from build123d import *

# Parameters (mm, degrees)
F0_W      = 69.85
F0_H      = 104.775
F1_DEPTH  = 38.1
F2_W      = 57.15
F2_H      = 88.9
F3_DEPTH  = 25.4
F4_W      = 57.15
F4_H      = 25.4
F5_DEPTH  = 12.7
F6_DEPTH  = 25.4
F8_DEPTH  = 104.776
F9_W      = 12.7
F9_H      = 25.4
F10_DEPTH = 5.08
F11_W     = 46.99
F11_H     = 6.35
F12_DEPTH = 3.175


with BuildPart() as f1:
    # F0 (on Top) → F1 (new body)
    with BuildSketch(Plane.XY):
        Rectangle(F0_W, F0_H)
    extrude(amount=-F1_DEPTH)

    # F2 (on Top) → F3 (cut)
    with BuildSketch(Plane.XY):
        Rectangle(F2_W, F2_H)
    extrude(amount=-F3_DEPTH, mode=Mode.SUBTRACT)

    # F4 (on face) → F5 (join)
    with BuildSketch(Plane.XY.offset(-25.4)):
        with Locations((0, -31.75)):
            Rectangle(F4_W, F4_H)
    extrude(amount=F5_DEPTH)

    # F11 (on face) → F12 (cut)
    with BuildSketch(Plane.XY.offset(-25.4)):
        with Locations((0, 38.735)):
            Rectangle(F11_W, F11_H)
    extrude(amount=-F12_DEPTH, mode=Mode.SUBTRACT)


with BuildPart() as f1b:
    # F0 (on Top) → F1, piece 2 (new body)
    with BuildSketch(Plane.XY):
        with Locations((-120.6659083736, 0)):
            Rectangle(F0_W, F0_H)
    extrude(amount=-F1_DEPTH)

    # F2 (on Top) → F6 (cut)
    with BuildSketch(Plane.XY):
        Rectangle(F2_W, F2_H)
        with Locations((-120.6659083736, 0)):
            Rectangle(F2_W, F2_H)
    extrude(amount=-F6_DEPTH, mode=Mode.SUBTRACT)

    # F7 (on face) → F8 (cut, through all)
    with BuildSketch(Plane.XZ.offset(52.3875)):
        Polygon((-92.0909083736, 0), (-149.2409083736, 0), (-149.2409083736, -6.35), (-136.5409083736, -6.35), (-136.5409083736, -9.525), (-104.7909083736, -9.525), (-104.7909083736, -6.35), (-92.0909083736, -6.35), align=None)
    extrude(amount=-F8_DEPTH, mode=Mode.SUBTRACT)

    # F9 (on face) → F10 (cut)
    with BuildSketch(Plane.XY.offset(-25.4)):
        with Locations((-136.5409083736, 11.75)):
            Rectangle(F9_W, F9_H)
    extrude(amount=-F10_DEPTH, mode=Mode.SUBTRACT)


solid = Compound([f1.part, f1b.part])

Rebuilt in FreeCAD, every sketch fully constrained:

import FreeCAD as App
import Part
import Sketcher
Q = App.Units.Quantity

doc = App.newDocument("Part")
body = doc.addObject("PartDesign::Body", "Body")

sketch1 = body.newObject("Sketcher::SketchObject", "Sketch")
sketch1.AttachmentSupport = (doc.getObject("XY_Plane"), [""])
sketch1.MapMode = "FlatFace"
sketch1.addGeometry([
    Part.LineSegment(App.Vector(-35, 52, 0), App.Vector(-35, -52, 0)),
    Part.LineSegment(App.Vector(-35, -52, 0), App.Vector(35, -52, 0)),
    Part.LineSegment(App.Vector(35, -52, 0), App.Vector(35, 52, 0)),
    Part.LineSegment(App.Vector(35, 52, 0), App.Vector(-35, 52, 0)),
], False)
sketch1.addConstraint([
    Sketcher.Constraint("Coincident", 0, 2, 1, 1),
    Sketcher.Constraint("Coincident", 1, 2, 2, 1),
    Sketcher.Constraint("Coincident", 2, 2, 3, 1),
    Sketcher.Constraint("Coincident", 3, 2, 0, 1),
    Sketcher.Constraint("Vertical", 0),
    Sketcher.Constraint("Horizontal", 1),
    Sketcher.Constraint("Vertical", 2),
    Sketcher.Constraint("Horizontal", 3),
    Sketcher.Constraint("Symmetric", 0, 2, 2, 2, -1, 1),
    Sketcher.Constraint("DistanceX", 1, 1, 1, 2, Q("2.75 in")),
    Sketcher.Constraint("DistanceY", 0, 2, 0, 1, Q("4.125 in")),
])
pad1 = body.newObject("PartDesign::Pad", "Pad")
pad1.Profile = sketch1
pad1.Length = Q("1.5 in")
pad1.Reversed = True

sketch2 = body.newObject("Sketcher::SketchObject", "Sketch001")
sketch2.AttachmentSupport = (doc.getObject("XY_Plane"), [""])
sketch2.MapMode = "FlatFace"
sketch2.addGeometry([
    Part.LineSegment(App.Vector(-29, 44, 0), App.Vector(-29, -44, 0)),
    Part.LineSegment(App.Vector(-29, -44, 0), App.Vector(29, -44, 0)),
    Part.LineSegment(App.Vector(29, -44, 0), App.Vector(29, 44, 0)),
    Part.LineSegment(App.Vector(29, 44, 0), App.Vector(-29, 44, 0)),
], False)
sketch2.addConstraint([
    Sketcher.Constraint("Coincident", 0, 2, 1, 1),
    Sketcher.Constraint("Coincident", 1, 2, 2, 1),
    Sketcher.Constraint("Coincident", 2, 2, 3, 1),
    Sketcher.Constraint("Coincident", 3, 2, 0, 1),
    Sketcher.Constraint("Vertical", 0),
    Sketcher.Constraint("Horizontal", 1),
    Sketcher.Constraint("Vertical", 2),
    Sketcher.Constraint("Horizontal", 3),
    Sketcher.Constraint("Symmetric", 0, 2, 2, 2, -1, 1),
    Sketcher.Constraint("DistanceY", 0, 2, 0, 1, Q("3.5 in")),
    Sketcher.Constraint("DistanceX", 1, 1, 1, 2, Q("2.25 in")),
])
pocket1 = body.newObject("PartDesign::Pocket", "Pocket")
pocket1.Profile = sketch2
pocket1.Length = Q("1 in")

sketch3 = body.newObject("Sketcher::SketchObject", "Sketch002")
sketch3.AttachmentSupport = (doc.getObject("XY_Plane"), [""])
sketch3.MapMode = "FlatFace"
sketch3.AttachmentOffset = App.Placement(App.Vector(0, 0, -1 * 25.4), App.Rotation())
sketch3.addGeometry([
    Part.LineSegment(App.Vector(-29, -19, 0), App.Vector(-29, -44, 0)),
    Part.LineSegment(App.Vector(-29, -44, 0), App.Vector(29, -44, 0)),
    Part.LineSegment(App.Vector(29, -44, 0), App.Vector(29, -19, 0)),
    Part.LineSegment(App.Vector(29, -19, 0), App.Vector(-29, -19, 0)),
], False)
sketch3.addConstraint([
    Sketcher.Constraint("Coincident", 0, 2, 1, 1),
    Sketcher.Constraint("Coincident", 1, 2, 2, 1),
    Sketcher.Constraint("Coincident", 2, 2, 3, 1),
    Sketcher.Constraint("Coincident", 3, 2, 0, 1),
    Sketcher.Constraint("Vertical", 0),
    Sketcher.Constraint("Horizontal", 1),
    Sketcher.Constraint("Vertical", 2),
    Sketcher.Constraint("Horizontal", 3),
    Sketcher.Constraint("DistanceY", 0, 2, 0, 1, Q("1 in")),
    Sketcher.Constraint("DistanceX", 1, 1, 1, 2, Q("2.25 in")),
    Sketcher.Constraint("DistanceY", 0, 2, -1, 1, Q("1.75 in")),
    Sketcher.Constraint("DistanceX", 0, 2, -1, 1, Q("1.125 in")),
])
pad2 = body.newObject("PartDesign::Pad", "Pad001")
pad2.Profile = sketch3
pad2.Length = Q("0.5 in")

sketch4 = body.newObject("Sketcher::SketchObject", "Sketch003")
sketch4.AttachmentSupport = (doc.getObject("XY_Plane"), [""])
sketch4.MapMode = "FlatFace"
sketch4.AttachmentOffset = App.Placement(App.Vector(0, 0, -1 * 25.4), App.Rotation())
sketch4.addGeometry([
    Part.LineSegment(App.Vector(-23, 42, 0), App.Vector(-23, 36, 0)),
    Part.LineSegment(App.Vector(-23, 36, 0), App.Vector(23, 36, 0)),
    Part.LineSegment(App.Vector(23, 36, 0), App.Vector(23, 42, 0)),
    Part.LineSegment(App.Vector(23, 42, 0), App.Vector(-23, 42, 0)),
], False)
sketch4.addConstraint([
    Sketcher.Constraint("Coincident", 0, 2, 1, 1),
    Sketcher.Constraint("Coincident", 1, 2, 2, 1),
    Sketcher.Constraint("Coincident", 2, 2, 3, 1),
    Sketcher.Constraint("Coincident", 3, 2, 0, 1),
    Sketcher.Constraint("Vertical", 0),
    Sketcher.Constraint("Horizontal", 1),
    Sketcher.Constraint("Vertical", 2),
    Sketcher.Constraint("Horizontal", 3),
    Sketcher.Constraint("DistanceX", 1, 1, 1, 2, Q("1.85 in")),
    Sketcher.Constraint("DistanceY", 0, 2, 0, 1, Q("0.25 in")),
    Sketcher.Constraint("DistanceY", -1, 1, 0, 2, Q("1.4 in")),
    Sketcher.Constraint("DistanceX", 0, 2, -1, 1, Q("0.925 in")),
])
pocket2 = body.newObject("PartDesign::Pocket", "Pocket001")
pocket2.Profile = sketch4
pocket2.Length = Q("0.125 in")
body2 = doc.addObject("PartDesign::Body", "Body001")

sketch5 = body2.newObject("Sketcher::SketchObject", "Sketch004")
sketch5.AttachmentSupport = (doc.getObject("XY_Plane001"), [""])
sketch5.MapMode = "FlatFace"
sketch5.addGeometry([
    Part.LineSegment(App.Vector(-156, 52, 0), App.Vector(-156, -52, 0)),
    Part.LineSegment(App.Vector(-156, -52, 0), App.Vector(-86, -52, 0)),
    Part.LineSegment(App.Vector(-86, -52, 0), App.Vector(-86, 52, 0)),
    Part.LineSegment(App.Vector(-86, 52, 0), App.Vector(-156, 52, 0)),
], False)
sketch5.addConstraint([
    Sketcher.Constraint("Coincident", 0, 2, 1, 1),
    Sketcher.Constraint("Coincident", 1, 2, 2, 1),
    Sketcher.Constraint("Coincident", 2, 2, 3, 1),
    Sketcher.Constraint("Coincident", 3, 2, 0, 1),
    Sketcher.Constraint("Vertical", 0),
    Sketcher.Constraint("Horizontal", 1),
    Sketcher.Constraint("Vertical", 2),
    Sketcher.Constraint("Horizontal", 3),
    Sketcher.Constraint("DistanceX", 1, 1, 1, 2, Q("2.75 in")),
    Sketcher.Constraint("DistanceY", 0, 2, 0, 1, Q("4.125 in")),
    Sketcher.Constraint("DistanceY", 0, 2, -1, 1, Q("2.0625 in")),
    Sketcher.Constraint("DistanceX", 0, 2, -1, 1, Q("155.590908 mm")),
])
pad3 = body2.newObject("PartDesign::Pad", "Pad002")
pad3.Profile = sketch5
pad3.Length = Q("1.5 in")
pad3.Reversed = True

sketch6 = body2.newObject("Sketcher::SketchObject", "Sketch005")
sketch6.AttachmentSupport = (doc.getObject("XY_Plane001"), [""])
sketch6.MapMode = "FlatFace"
sketch6.addGeometry([
    Part.LineSegment(App.Vector(-29, 44, 0), App.Vector(-29, -44, 0)),
    Part.LineSegment(App.Vector(-29, -44, 0), App.Vector(29, -44, 0)),
    Part.LineSegment(App.Vector(29, -44, 0), App.Vector(29, 44, 0)),
    Part.LineSegment(App.Vector(29, 44, 0), App.Vector(-29, 44, 0)),
    Part.LineSegment(App.Vector(-149, 44, 0), App.Vector(-149, -44, 0)),
    Part.LineSegment(App.Vector(-149, -44, 0), App.Vector(-92, -44, 0)),
    Part.LineSegment(App.Vector(-92, -44, 0), App.Vector(-92, 44, 0)),
    Part.LineSegment(App.Vector(-92, 44, 0), App.Vector(-149, 44, 0)),
], False)
sketch6.addConstraint([
    Sketcher.Constraint("Coincident", 0, 2, 1, 1),
    Sketcher.Constraint("Coincident", 1, 2, 2, 1),
    Sketcher.Constraint("Coincident", 2, 2, 3, 1),
    Sketcher.Constraint("Coincident", 3, 2, 0, 1),
    Sketcher.Constraint("Coincident", 4, 2, 5, 1),
    Sketcher.Constraint("Coincident", 5, 2, 6, 1),
    Sketcher.Constraint("Coincident", 6, 2, 7, 1),
    Sketcher.Constraint("Coincident", 7, 2, 4, 1),
    Sketcher.Constraint("Vertical", 0),
    Sketcher.Constraint("Horizontal", 1),
    Sketcher.Constraint("Vertical", 2),
    Sketcher.Constraint("Horizontal", 3),
    Sketcher.Constraint("Vertical", 4),
    Sketcher.Constraint("Horizontal", 5),
    Sketcher.Constraint("Vertical", 6),
    Sketcher.Constraint("Horizontal", 7),
    Sketcher.Constraint("Symmetric", 0, 2, 2, 2, -1, 1),
    Sketcher.Constraint("Horizontal", 1, 2, 4, 2),
    Sketcher.Constraint("Horizontal", 3, 2, 6, 2),
    Sketcher.Constraint("Equal", 3, 5),
    Sketcher.Constraint("DistanceY", 0, 2, 0, 1, Q("3.5 in")),
    Sketcher.Constraint("DistanceX", 1, 1, 1, 2, Q("2.25 in")),
    Sketcher.Constraint("DistanceX", 4, 2, -1, 1, Q("149.240908 mm")),
])
pocket3 = body2.newObject("PartDesign::Pocket", "Pocket002")
pocket3.Profile = sketch6
pocket3.Length = Q("1 in")

sketch7 = body2.newObject("Sketcher::SketchObject", "Sketch006")
sketch7.AttachmentSupport = (doc.getObject("XZ_Plane001"), [""])
sketch7.MapMode = "FlatFace"
sketch7.AttachmentOffset = App.Placement(App.Vector(0, 0, 2.0625 * 25.4), App.Rotation())
sketch7.addGeometry([
    Part.LineSegment(App.Vector(-92.1, 0, 0), App.Vector(-149.2, 0, 0)),
    Part.LineSegment(App.Vector(-149.2, 0, 0), App.Vector(-149.2, -6.3, 0)),
    Part.LineSegment(App.Vector(-149.2, -6.3, 0), App.Vector(-136.5, -6.3, 0)),
    Part.LineSegment(App.Vector(-136.5, -6.3, 0), App.Vector(-136.5, -9.5, 0)),
    Part.LineSegment(App.Vector(-136.5, -9.5, 0), App.Vector(-104.8, -9.5, 0)),
    Part.LineSegment(App.Vector(-104.8, -9.5, 0), App.Vector(-104.8, -6.3, 0)),
    Part.LineSegment(App.Vector(-104.8, -6.3, 0), App.Vector(-92.1, -6.3, 0)),
    Part.LineSegment(App.Vector(-92.1, -6.3, 0), App.Vector(-92.1, 0, 0)),
], False)
sketch7.addConstraint([
    Sketcher.Constraint("Coincident", 0, 2, 1, 1),
    Sketcher.Constraint("Coincident", 1, 2, 2, 1),
    Sketcher.Constraint("Coincident", 2, 2, 3, 1),
    Sketcher.Constraint("Coincident", 3, 2, 4, 1),
    Sketcher.Constraint("Coincident", 4, 2, 5, 1),
    Sketcher.Constraint("Coincident", 5, 2, 6, 1),
    Sketcher.Constraint("Coincident", 6, 2, 7, 1),
    Sketcher.Constraint("Coincident", 7, 2, 0, 1),
    Sketcher.Constraint("Horizontal", 0),
    Sketcher.Constraint("Vertical", 1),
    Sketcher.Constraint("Horizontal", 2),
    Sketcher.Constraint("Vertical", 3),
    Sketcher.Constraint("Horizontal", 4),
    Sketcher.Constraint("Vertical", 5),
    Sketcher.Constraint("Horizontal", 6),
    Sketcher.Constraint("Vertical", 7),
    Sketcher.Constraint("PointOnObject", 0, 2, -1),
    Sketcher.Constraint("Horizontal", 2, 2, 5, 2),
    Sketcher.Constraint("Equal", 2, 6),
    Sketcher.Constraint("DistanceX", 2, 1, 2, 2, Q("0.5 in")),
    Sketcher.Constraint("DistanceX", 0, 2, 0, 1, Q("2.25 in")),
    Sketcher.Constraint("DistanceY", 1, 2, 1, 1, Q("0.25 in")),
    Sketcher.Constraint("DistanceY", 3, 2, 3, 1, Q("0.125 in")),
    Sketcher.Constraint("DistanceX", 0, 2, -1, 1, Q("149.240908 mm")),
])
pocket4 = body2.newObject("PartDesign::Pocket", "Pocket003")
pocket4.Profile = sketch7
pocket4.Type = "ThroughAll"

sketch8 = body2.newObject("Sketcher::SketchObject", "Sketch007")
sketch8.AttachmentSupport = (doc.getObject("XY_Plane001"), [""])
sketch8.MapMode = "FlatFace"
sketch8.AttachmentOffset = App.Placement(App.Vector(0, 0, -1 * 25.4), App.Rotation())
sketch8.addGeometry([
    Part.LineSegment(App.Vector(-143, 24, 0), App.Vector(-143, -1, 0)),
    Part.LineSegment(App.Vector(-143, -1, 0), App.Vector(-130, -1, 0)),
    Part.LineSegment(App.Vector(-130, -1, 0), App.Vector(-130, 24, 0)),
    Part.LineSegment(App.Vector(-130, 24, 0), App.Vector(-143, 24, 0)),
], False)
sketch8.addConstraint([
    Sketcher.Constraint("Coincident", 0, 2, 1, 1),
    Sketcher.Constraint("Coincident", 1, 2, 2, 1),
    Sketcher.Constraint("Coincident", 2, 2, 3, 1),
    Sketcher.Constraint("Coincident", 3, 2, 0, 1),
    Sketcher.Constraint("Vertical", 0),
    Sketcher.Constraint("Horizontal", 1),
    Sketcher.Constraint("Vertical", 2),
    Sketcher.Constraint("Horizontal", 3),
    Sketcher.Constraint("DistanceY", 0, 2, 0, 1, Q("1 in")),
    Sketcher.Constraint("DistanceX", 1, 1, 1, 2, Q("0.5 in")),
    Sketcher.Constraint("DistanceY", 0, 2, -1, 1, Q("0.95 mm")),
    Sketcher.Constraint("DistanceX", 0, 2, -1, 1, Q("142.890908 mm")),
])
pocket5 = body2.newObject("PartDesign::Pocket", "Pocket004")
pocket5.Profile = sketch8
pocket5.Length = Q("0.2 in")

doc.recompute()
